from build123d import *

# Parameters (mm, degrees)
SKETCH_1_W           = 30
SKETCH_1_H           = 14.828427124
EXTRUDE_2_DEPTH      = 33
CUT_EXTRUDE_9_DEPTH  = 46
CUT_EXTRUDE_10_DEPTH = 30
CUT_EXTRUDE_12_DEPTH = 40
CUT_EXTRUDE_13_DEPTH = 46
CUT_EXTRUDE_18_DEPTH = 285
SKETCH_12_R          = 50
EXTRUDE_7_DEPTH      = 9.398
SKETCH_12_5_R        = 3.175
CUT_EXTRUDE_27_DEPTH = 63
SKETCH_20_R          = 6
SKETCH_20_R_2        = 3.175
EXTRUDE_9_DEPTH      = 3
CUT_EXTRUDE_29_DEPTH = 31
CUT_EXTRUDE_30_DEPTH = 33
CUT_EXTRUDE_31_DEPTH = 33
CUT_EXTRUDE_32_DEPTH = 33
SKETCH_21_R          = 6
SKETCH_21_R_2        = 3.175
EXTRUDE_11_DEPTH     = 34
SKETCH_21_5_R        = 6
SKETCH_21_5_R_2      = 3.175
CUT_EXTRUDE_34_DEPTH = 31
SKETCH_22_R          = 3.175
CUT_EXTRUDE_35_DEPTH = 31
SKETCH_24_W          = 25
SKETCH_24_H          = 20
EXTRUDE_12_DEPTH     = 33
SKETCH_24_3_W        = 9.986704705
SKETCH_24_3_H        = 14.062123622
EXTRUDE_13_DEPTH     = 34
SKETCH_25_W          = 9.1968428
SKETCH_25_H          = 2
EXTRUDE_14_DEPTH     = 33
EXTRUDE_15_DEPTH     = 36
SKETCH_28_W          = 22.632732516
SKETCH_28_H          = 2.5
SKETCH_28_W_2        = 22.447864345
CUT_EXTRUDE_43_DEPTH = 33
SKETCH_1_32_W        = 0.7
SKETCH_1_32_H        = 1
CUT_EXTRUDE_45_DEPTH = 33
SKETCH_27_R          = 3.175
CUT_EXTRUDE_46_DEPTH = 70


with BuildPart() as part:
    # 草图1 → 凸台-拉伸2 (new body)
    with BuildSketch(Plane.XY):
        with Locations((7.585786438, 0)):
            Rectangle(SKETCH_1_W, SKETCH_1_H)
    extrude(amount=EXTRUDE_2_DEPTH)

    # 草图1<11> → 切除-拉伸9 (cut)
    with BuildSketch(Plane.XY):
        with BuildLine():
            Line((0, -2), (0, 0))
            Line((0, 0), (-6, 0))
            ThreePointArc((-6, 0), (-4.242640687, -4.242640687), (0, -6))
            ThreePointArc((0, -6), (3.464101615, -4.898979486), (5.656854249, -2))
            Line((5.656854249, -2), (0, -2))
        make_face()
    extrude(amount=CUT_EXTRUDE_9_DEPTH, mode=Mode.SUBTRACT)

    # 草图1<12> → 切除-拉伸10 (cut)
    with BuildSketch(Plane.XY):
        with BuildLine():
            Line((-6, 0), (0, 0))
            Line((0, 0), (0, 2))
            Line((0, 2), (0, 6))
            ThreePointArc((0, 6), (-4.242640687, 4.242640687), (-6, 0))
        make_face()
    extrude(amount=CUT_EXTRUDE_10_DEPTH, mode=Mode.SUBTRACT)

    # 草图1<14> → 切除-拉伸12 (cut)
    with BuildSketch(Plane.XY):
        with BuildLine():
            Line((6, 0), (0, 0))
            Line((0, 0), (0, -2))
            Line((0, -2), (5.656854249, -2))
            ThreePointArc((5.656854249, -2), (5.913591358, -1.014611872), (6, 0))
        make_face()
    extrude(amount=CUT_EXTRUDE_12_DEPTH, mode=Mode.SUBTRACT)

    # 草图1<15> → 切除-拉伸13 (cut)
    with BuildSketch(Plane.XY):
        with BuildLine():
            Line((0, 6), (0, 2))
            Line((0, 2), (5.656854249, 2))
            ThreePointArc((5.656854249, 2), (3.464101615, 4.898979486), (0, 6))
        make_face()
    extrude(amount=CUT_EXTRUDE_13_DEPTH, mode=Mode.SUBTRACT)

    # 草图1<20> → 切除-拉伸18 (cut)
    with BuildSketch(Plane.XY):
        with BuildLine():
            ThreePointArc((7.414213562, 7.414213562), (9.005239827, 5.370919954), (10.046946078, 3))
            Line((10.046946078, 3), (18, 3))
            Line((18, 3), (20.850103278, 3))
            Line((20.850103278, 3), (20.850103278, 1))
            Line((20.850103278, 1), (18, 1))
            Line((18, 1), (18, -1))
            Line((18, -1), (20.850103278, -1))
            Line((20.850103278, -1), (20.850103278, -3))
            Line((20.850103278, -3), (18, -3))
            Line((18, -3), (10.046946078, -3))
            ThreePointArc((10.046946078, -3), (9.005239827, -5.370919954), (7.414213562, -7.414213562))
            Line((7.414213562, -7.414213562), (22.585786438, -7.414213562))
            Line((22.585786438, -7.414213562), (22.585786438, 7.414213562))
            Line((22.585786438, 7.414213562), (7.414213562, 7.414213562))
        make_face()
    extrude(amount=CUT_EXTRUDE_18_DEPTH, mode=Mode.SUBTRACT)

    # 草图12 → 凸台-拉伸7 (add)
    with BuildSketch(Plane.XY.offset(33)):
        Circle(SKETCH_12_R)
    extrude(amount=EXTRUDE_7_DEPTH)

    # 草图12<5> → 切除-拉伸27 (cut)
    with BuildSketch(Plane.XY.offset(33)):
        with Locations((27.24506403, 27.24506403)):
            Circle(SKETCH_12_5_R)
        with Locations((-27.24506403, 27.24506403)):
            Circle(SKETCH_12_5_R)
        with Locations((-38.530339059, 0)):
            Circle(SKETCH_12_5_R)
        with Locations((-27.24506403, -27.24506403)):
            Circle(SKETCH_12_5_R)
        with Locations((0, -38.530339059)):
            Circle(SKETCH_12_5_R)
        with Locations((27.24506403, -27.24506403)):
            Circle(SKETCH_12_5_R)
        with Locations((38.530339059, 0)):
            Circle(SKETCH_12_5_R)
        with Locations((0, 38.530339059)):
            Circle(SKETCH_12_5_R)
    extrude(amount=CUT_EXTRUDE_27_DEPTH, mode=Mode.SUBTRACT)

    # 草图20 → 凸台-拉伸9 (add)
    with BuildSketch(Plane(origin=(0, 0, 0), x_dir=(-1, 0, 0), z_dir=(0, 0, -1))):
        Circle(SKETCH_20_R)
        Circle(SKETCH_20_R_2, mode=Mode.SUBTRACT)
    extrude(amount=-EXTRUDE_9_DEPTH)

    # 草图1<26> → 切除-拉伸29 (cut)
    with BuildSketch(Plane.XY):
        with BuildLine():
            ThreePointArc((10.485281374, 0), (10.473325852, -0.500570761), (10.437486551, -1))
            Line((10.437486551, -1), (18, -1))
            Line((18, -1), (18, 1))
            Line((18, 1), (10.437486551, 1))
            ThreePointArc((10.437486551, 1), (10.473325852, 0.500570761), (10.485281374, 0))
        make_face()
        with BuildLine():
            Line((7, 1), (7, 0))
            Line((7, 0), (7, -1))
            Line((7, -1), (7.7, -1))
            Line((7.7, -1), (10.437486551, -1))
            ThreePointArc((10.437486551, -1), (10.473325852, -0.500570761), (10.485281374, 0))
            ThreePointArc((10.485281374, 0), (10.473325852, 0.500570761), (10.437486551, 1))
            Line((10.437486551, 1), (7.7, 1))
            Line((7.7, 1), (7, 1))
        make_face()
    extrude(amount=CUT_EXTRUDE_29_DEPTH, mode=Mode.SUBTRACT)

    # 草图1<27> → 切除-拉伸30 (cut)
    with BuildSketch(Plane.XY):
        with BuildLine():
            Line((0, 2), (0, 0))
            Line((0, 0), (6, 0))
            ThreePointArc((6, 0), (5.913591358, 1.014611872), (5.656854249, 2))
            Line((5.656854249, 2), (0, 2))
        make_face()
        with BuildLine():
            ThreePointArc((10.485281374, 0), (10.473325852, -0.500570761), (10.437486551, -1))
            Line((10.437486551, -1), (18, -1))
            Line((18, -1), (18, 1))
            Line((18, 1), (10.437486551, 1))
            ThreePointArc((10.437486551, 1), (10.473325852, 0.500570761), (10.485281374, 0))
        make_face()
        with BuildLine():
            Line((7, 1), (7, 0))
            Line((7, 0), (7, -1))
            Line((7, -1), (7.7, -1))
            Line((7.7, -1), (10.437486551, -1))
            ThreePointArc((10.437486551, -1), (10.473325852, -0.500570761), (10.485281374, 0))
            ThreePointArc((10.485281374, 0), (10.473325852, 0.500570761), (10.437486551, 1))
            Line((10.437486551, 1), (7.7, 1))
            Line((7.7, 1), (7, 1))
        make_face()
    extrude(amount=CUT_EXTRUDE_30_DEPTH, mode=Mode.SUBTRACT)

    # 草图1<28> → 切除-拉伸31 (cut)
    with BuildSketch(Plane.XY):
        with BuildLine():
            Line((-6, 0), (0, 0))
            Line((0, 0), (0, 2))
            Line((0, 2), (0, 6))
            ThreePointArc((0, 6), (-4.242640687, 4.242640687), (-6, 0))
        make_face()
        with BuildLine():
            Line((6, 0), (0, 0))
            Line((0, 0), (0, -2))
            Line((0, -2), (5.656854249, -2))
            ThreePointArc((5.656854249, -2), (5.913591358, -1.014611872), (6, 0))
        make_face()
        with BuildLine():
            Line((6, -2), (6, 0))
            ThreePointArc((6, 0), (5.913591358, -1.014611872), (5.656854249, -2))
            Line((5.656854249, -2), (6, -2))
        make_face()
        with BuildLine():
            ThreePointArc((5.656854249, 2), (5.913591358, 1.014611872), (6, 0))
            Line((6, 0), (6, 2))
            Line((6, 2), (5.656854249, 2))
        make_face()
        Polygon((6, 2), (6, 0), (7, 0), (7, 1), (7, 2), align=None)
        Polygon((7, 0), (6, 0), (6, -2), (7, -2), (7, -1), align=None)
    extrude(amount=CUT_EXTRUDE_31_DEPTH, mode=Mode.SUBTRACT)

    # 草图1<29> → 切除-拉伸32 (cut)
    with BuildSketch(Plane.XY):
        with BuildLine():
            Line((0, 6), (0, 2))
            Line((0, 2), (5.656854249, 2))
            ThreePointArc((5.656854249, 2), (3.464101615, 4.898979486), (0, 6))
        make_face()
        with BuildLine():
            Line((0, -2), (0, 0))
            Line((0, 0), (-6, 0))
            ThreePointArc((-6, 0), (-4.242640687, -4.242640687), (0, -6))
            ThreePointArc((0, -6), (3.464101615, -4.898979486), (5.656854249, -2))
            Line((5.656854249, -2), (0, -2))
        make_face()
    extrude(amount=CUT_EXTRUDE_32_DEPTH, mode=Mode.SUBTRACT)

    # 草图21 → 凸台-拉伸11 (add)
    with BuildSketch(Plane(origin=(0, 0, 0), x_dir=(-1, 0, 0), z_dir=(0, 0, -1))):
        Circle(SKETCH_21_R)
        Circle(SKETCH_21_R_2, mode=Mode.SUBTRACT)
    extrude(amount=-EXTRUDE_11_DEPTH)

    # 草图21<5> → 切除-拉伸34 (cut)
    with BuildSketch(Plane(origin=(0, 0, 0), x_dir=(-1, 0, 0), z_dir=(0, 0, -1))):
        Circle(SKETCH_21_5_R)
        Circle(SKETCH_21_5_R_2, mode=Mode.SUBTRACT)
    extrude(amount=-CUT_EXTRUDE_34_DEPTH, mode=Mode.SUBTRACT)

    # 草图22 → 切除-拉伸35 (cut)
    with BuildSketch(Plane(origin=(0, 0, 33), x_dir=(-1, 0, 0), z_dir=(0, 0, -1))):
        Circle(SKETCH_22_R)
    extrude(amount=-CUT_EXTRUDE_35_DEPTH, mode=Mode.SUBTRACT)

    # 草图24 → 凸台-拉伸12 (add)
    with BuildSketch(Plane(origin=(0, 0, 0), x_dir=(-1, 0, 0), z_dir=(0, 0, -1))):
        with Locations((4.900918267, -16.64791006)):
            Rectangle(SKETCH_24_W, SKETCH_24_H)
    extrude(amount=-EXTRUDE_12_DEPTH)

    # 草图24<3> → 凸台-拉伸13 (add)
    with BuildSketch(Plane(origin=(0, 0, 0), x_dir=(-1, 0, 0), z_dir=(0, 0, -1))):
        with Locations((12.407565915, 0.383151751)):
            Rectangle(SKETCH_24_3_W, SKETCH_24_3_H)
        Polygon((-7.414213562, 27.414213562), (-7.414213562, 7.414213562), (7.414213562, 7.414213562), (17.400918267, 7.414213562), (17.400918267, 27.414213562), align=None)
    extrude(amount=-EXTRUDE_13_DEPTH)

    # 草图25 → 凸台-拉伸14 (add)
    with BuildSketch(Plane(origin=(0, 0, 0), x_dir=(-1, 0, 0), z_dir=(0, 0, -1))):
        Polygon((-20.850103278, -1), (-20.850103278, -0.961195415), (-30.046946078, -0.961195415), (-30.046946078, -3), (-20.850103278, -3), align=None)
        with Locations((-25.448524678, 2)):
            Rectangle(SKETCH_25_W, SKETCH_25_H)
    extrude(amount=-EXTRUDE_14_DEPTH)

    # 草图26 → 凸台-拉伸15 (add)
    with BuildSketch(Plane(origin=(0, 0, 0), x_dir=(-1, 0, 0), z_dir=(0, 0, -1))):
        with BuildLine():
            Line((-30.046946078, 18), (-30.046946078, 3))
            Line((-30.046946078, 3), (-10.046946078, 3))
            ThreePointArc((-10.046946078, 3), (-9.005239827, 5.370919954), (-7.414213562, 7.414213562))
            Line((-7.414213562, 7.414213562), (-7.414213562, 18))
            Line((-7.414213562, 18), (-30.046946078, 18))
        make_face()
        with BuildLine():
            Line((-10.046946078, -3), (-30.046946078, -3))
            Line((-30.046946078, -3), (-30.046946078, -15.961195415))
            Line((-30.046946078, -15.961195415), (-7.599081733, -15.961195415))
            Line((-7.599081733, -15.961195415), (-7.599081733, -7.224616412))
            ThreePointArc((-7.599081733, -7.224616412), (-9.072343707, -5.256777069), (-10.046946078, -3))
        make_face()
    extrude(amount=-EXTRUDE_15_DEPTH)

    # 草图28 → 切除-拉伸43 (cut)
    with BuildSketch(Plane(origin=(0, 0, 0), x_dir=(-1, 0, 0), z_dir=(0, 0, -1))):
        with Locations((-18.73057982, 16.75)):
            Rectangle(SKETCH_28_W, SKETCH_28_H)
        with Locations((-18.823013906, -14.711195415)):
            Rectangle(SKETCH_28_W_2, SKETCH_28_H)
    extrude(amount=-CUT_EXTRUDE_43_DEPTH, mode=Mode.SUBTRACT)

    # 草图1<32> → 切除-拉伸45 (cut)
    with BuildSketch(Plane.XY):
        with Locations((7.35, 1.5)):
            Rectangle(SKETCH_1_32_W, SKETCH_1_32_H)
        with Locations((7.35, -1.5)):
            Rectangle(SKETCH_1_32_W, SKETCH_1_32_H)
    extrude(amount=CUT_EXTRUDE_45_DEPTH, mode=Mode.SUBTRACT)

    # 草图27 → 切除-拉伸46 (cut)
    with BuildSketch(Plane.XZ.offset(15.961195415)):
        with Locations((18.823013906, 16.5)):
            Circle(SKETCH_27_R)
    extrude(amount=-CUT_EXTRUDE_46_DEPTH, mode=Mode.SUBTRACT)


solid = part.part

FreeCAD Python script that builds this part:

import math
import FreeCAD as App
import Part
import Sketcher

V = App.Vector
Q = App.Units.Quantity


def add_polygon(sketch, points):
    """Adds a closed chain of lines whose ends are joined by coincident constraints."""
    first, n = sketch.GeometryCount, len(points)
    for a, b in zip(points, points[1:] + points[:1]):
        sketch.addGeometry(Part.LineSegment(App.Vector(*a, 0), App.Vector(*b, 0)), False)
    for i in range(n):
        sketch.addConstraint(Sketcher.Constraint("Coincident", first + i, 2, first + (i + 1) % n, 1))

doc = App.newDocument("Part")
params = doc.addObject("Spreadsheet::Sheet", "Params")
for row, (alias, value) in enumerate([
    ("sketch1_width", "30 mm"),
    ("pad1_length", "33 mm"),
    ("sketch2_radius", "6 mm"),
    ("sketch2_height", "2 mm"),
    ("pocket1_length", "46 mm"),
    ("sketch3_radius", "6 mm"),
    ("pocket2_length", "30 mm"),
    ("sketch4_radius", "6 mm"),
    ("sketch4_height", "2 mm"),
    ("pocket3_length", "40 mm"),
    ("sketch5_radius", "6 mm"),
    ("sketch5_height", "4 mm"),
    ("pocket4_length", "46 mm"),
    ("sketch6_height", "2 mm"),
    ("pocket5_length", "285 mm"),
    ("sketch7_diameter", "100 mm"),
    ("pad2_length", "9.398 mm"),
    ("sketch8_diameter", "6.35 mm"),
    ("pocket6_length", "63 mm"),
    ("sketch9_diameter", "12 mm"),
    ("sketch9_diameter2", "6.35 mm"),
    ("pad3_length", "3 mm"),
    ("sketch10_width", "11 mm"),
    ("sketch10_height", "2 mm"),
    ("pocket7_length", "31 mm"),
    ("sketch11_radius", "6 mm"),
    ("sketch11_width", "11 mm"),
    ("sketch11_height", "2 mm"),
    ("pocket8_length", "33 mm"),
    ("sketch12_radius", "6 mm"),
    ("sketch12_width", "7 mm"),
    ("sketch12_height", "2 mm"),
    ("sketch12_height2", "4 mm"),
    ("pocket9_length", "33 mm"),
    ("sketch13_radius", "6 mm"),
    ("sketch13_height", "4 mm"),
    ("pocket10_length", "33 mm"),
    ("sketch14_diameter", "12 mm"),
    ("sketch14_diameter2", "6.35 mm"),
    ("pad4_length", "34 mm"),
    ("sketch15_diameter", "12 mm"),
    ("sketch15_diameter2", "6.35 mm"),
    ("pocket11_length", "31 mm"),
    ("sketch16_diameter", "6.35 mm"),
    ("pocket12_length", "31 mm"),
    ("sketch17_width", "25 mm"),
    ("sketch17_height", "20 mm"),
    ("pad5_length", "33 mm"),
    ("sketch18_height", "20 mm"),
    ("pad6_length", "34 mm"),
    ("sketch19_height", "2 mm"),
    ("pad7_length", "33 mm"),
    ("sketch20_width", "20 mm"),
    ("sketch20_height", "15 mm"),
    ("pad8_length", "36 mm"),
    ("sketch21_height", "2.5 mm"),
    ("pocket13_length", "33 mm"),
    ("sketch22_height", "1 mm"),
    ("sketch22_width", "0.7 mm"),
    ("pocket14_length", "33 mm"),
    ("sketch23_diameter", "6.35 mm"),
    ("pocket15_length", "70 mm"),
], start=1):
    params.set(f"A{row}", alias)
    params.set(f"B{row}", "=" + value)
    params.setAlias(f"B{row}", alias)

body = doc.addObject("PartDesign::Body", "Body")

# Sketch on XY plane
sketch1 = body.newObject("Sketcher::SketchObject", "Sketch")
sketch1.AttachmentSupport = (doc.getObject("XY_Plane"), [""])
sketch1.MapMode = "FlatFace"
add_polygon(sketch1, [(-7.414214, 7.414214), (-7.414214, -7.414214), (22.585786, -7.414214), (22.585786, 7.414214)])  # lines 0-3
sketch1.addConstraint([
    Sketcher.Constraint("Vertical", 0),
    Sketcher.Constraint("Horizontal", 1),
    Sketcher.Constraint("Vertical", 2),
    Sketcher.Constraint("Horizontal", 3),
    Sketcher.Constraint("DistanceX", 1, 1, 1, 2, Q("30 mm")),
    Sketcher.Constraint("DistanceY", 0, 2, 0, 1, Q("14.828427 mm")),
    Sketcher.Constraint("DistanceX", 0, 2, -1, 1, Q("7.414214 mm")),
    Sketcher.Constraint("DistanceY", 0, 2, -1, 1, Q("7.414214 mm")),
])
sketch1.setExpression("Constraints[8]", "Params.sketch1_width")
pad1 = body.newObject("PartDesign::Pad", "Pad")
pad1.Profile = sketch1
pad1.setExpression("Length", "Params.pad1_length")

# Sketch on XY plane
sketch2 = body.newObject("Sketcher::SketchObject", "Sketch001")
sketch2.AttachmentSupport = (doc.getObject("XY_Plane"), [""])
sketch2.MapMode = "FlatFace"
sketch2.addGeometry([
    Part.LineSegment(V(0, -2, 0), V(0, 0, 0)),  # 0
    Part.LineSegment(V(0, 0, 0), V(-6, 0, 0)),  # 1
    Part.ArcOfCircle(Part.Circle(V(0, 0, 0), V(0, 0, 1), 6), math.radians(180), math.radians(270)),  # 2
    Part.ArcOfCircle(Part.Circle(V(0, 0, 0), V(0, 0, 1), 6), math.radians(-90), math.radians(-19.471221)),  # 3
    Part.LineSegment(V(5.656854, -2, 0), V(0, -2, 0)),  # 4
], False)
sketch2.addConstraint([
    Sketcher.Constraint("Coincident", 0, 2, 1, 1),
    Sketcher.Constraint("Coincident", 1, 2, 2, 1),
    Sketcher.Constraint("Tangent", 2, 2, 3, 1),
    Sketcher.Constraint("Coincident", 3, 2, 4, 1),
    Sketcher.Constraint("Coincident", 4, 2, 0, 1),
    Sketcher.Constraint("Vertical", 0),
    Sketcher.Constraint("Horizontal", 1),
    Sketcher.Constraint("Horizontal", 4),
    Sketcher.Constraint("Coincident", 2, 3, -1, 1),
    Sketcher.Constraint("Coincident", 0, 2, -1, 1),
    Sketcher.Constraint("Equal", 2, 3),
    Sketcher.Constraint("PointOnObject", 2, 2, -2),
    Sketcher.Constraint("Radius", 2, Q("6 mm")),
    Sketcher.Constraint("DistanceY", 0, 1, 0, 2, Q("2 mm")),
])
sketch2.setExpression("Constraints[12]", "Params.sketch2_radius")
sketch2.setExpression("Constraints[13]", "Params.sketch2_height")
pocket1 = body.newObject("PartDesign::Pocket", "Pocket")
pocket1.Profile = sketch2
pocket1.setExpression("Length", "Params.pocket1_length")
pocket1.Reversed = True

# Sketch on XY plane
sketch3 = body.newObject("Sketcher::SketchObject", "Sketch002")
sketch3.AttachmentSupport = (doc.getObject("XY_Plane"), [""])
sketch3.MapMode = "FlatFace"
sketch3.addGeometry([
    Part.LineSegment(V(-6, 0, 0), V(0, 0, 0)),
    Part.LineSegment(V(0, 0, 0), V(0, 6, 0)),
    Part.ArcOfCircle(Part.Circle(V(0, 0, 0), V(0, 0, 1), 6), math.radians(90), math.radians(180)),
], False)
sketch3.addConstraint([
    Sketcher.Constraint("Coincident", 0, 2, 1, 1),
    Sketcher.Constraint("Coincident", 1, 2, 2, 1),
    Sketcher.Constraint("Coincident", 2, 2, 0, 1),
    Sketcher.Constraint("Horizontal", 0),
    Sketcher.Constraint("Vertical", 1),
    Sketcher.Constraint("Coincident", 2, 3, -1, 1),
    Sketcher.Constraint("Coincident", 0, 2, -1, 1),
    Sketcher.Constraint("Radius", 2, Q("6 mm")),
])
sketch3.setExpression("Constraints[7]", "Params.sketch3_radius")
pocket2 = body.newObject("PartDesign::Pocket", "Pocket001")
pocket2.Profile = sketch3
pocket2.setExpression("Length", "Params.pocket2_length")
pocket2.Reversed = True

# Sketch on XY plane
sketch4 = body.newObject("Sketcher::SketchObject", "Sketch003")
sketch4.AttachmentSupport = (doc.getObject("XY_Plane"), [""])
sketch4.MapMode = "FlatFace"
sketch4.addGeometry([
    Part.LineSegment(V(6, 0, 0), V(0, 0, 0)),
    Part.LineSegment(V(0, 0, 0), V(0, -2, 0)),
    Part.LineSegment(V(0, -2, 0), V(5.656854, -2, 0)),
    Part.ArcOfCircle(Part.Circle(V(0, 0, 0), V(0, 0, 1), 6), math.radians(-19.471221), math.radians(0)),
], False)
sketch4.addConstraint([
    Sketcher.Constraint("Coincident", 0, 2, 1, 1),
    Sketcher.Constraint("Coincident", 1, 2, 2, 1),
    Sketcher.Constraint("Coincident", 2, 2, 3, 1),
    Sketcher.Constraint("Coincident", 3, 2, 0, 1),
    Sketcher.Constraint("Horizontal", 0),
    Sketcher.Constraint("Vertical", 1),
    Sketcher.Constraint("Horizontal", 2),
    Sketcher.Constraint("Coincident", 3, 3, -1, 1),
    Sketcher.Constraint("Coincident", 0, 2, -1, 1),
    Sketcher.Constraint("Radius", 3, Q("6 mm")),
    Sketcher.Constraint("DistanceY", 1, 2, 1, 1, Q("2 mm")),
])
sketch4.setExpression("Constraints[9]", "Params.sketch4_radius")
sketch4.setExpression("Constraints[10]", "Params.sketch4_height")
pocket3 = body.newObject("PartDesign::Pocket", "Pocket002")
pocket3.Profile = sketch4
pocket3.setExpression("Length", "Params.pocket3_length")
pocket3.Reversed = True

# Sketch on XY plane
sketch5 = body.newObject("Sketcher::SketchObject", "Sketch004")
sketch5.AttachmentSupport = (doc.getObject("XY_Plane"), [""])
sketch5.MapMode = "FlatFace"
sketch5.addGeometry([
    Part.LineSegment(V(0, 6, 0), V(0, 2, 0)),
    Part.LineSegment(V(0, 2, 0), V(5.656854, 2, 0)),
    Part.ArcOfCircle(Part.Circle(V(0, 0, 0), V(0, 0, 1), 6), math.radians(19.471221), math.radians(90)),
], False)
sketch5.addConstraint([
    Sketcher.Constraint("Coincident", 0, 2, 1, 1),
    Sketcher.Constraint("Coincident", 1, 2, 2, 1),
    Sketcher.Constraint("Coincident", 2, 2, 0, 1),
    Sketcher.Constraint("Vertical", 0),
    Sketcher.Constraint("Horizontal", 1),
    Sketcher.Constraint("Coincident", 2, 3, -1, 1),
    Sketcher.Constraint("PointOnObject", 0, 2, -2),
    Sketcher.Constraint("Radius", 2, Q("6 mm")),
    Sketcher.Constraint("DistanceY", 0, 2, 0, 1, Q("4 mm")),
])
sketch5.setExpression("Constraints[7]", "Params.sketch5_radius")
sketch5.setExpression("Constraints[8]", "Params.sketch5_height")
pocket4 = body.newObject("PartDesign::Pocket", "Pocket003")
pocket4.Profile = sketch5
pocket4.setExpression("Length", "Params.pocket4_length")
pocket4.Reversed = True

# Sketch on XY plane
sketch6 = body.newObject("Sketcher::SketchObject", "Sketch005")
sketch6.AttachmentSupport = (doc.getObject("XY_Plane"), [""])
sketch6.MapMode = "FlatFace"
sketch6.addGeometry([
    Part.ArcOfCircle(Part.Circle(V(0, 0, 0), V(0, 0, 1), 10.485281), math.radians(16.62553), math.radians(45)),  # 0
    Part.LineSegment(V(10.046946, 3, 0), V(20.850103, 3, 0)),  # 1
    Part.LineSegment(V(20.850103, 3, 0), V(20.850103, 1, 0)),  # 2
    Part.LineSegment(V(20.850103, 1, 0), V(18, 1, 0)),  # 3
    Part.LineSegment(V(18, 1, 0), V(18, -1, 0)),  # 4
    Part.LineSegment(V(18, -1, 0), V(20.850103, -1, 0)),  # 5
    Part.LineSegment(V(20.850103, -1, 0), V(20.850103, -3, 0)),  # 6
    Part.LineSegment(V(20.850103, -3, 0), V(10.046946, -3, 0)),  # 7
    Part.ArcOfCircle(Part.Circle(V(0, 0, 0), V(0, 0, 1), 10.485281), math.radians(-45), math.radians(-16.62553)),  # 8
    Part.LineSegment(V(7.414214, -7.414214, 0), V(22.585786, -7.414214, 0)),  # 9
    Part.LineSegment(V(22.585786, -7.414214, 0), V(22.585786, 7.414214, 0)),  # 10
    Part.LineSegment(V(22.585786, 7.414214, 0), V(7.414214, 7.414214, 0)),  # 11
], False)
sketch6.addConstraint([
    Sketcher.Constraint("Coincident", 0, 1, 1, 1),
    Sketcher.Constraint("Coincident", 1, 2, 2, 1),
    Sketcher.Constraint("Coincident", 2, 2, 3, 1),
    Sketcher.Constraint("Coincident", 3, 2, 4, 1),
    Sketcher.Constraint("Coincident", 4, 2, 5, 1),
    Sketcher.Constraint("Coincident", 5, 2, 6, 1),
    Sketcher.Constraint("Coincident", 6, 2, 7, 1),
    Sketcher.Constraint("Coincident", 7, 2, 8, 2),
    Sketcher.Constraint("Coincident", 8, 1, 9, 1),
    Sketcher.Constraint("Coincident", 9, 2, 10, 1),
    Sketcher.Constraint("Coincident", 10, 2, 11, 1),
    Sketcher.Constraint("Coincident", 11, 2, 0, 2),
    Sketcher.Constraint("Horizontal", 1),
    Sketcher.Constraint("Vertical", 2),
    Sketcher.Constraint("Horizontal", 3),
    Sketcher.Constraint("Vertical", 4),
    Sketcher.Constraint("Horizontal", 5),
    Sketcher.Constraint("Vertical", 6),
    Sketcher.Constraint("Horizontal", 7),
    Sketcher.Constraint("Horizontal", 9),
    Sketcher.Constraint("Vertical", 10),
    Sketcher.Constraint("Horizontal", 11),
    Sketcher.Constraint("Coincident", 0, 3, -1, 1),
    Sketcher.Constraint("Coincident", 8, 3, -1, 1),
    Sketcher.Constraint("Equal", 0, 8),
    Sketcher.Constraint("Symmetric", 2, 2, 5, 2, -1),
    Sketcher.Constraint("Vertical", 0, 1, 7, 2),
    Sketcher.Constraint("Vertical", 8, 1, 11, 2),
    Sketcher.Constraint("Equal", 2, 4),
    Sketcher.Constraint("DistanceY", 2, 2, 2, 1, Q("2 mm")),
    Sketcher.Constraint("DistanceX", -1, 1, 3, 2, Q("18 mm")),
    Sketcher.Constraint("Radius", 0, Q("10.485281 mm")),
    Sketcher.Constraint("DistanceX", 1, 1, 1, 2, Q("10.803157 mm")),
    Sketcher.Constraint("DistanceX", 9, 1, 9, 2, Q("15.171573 mm")),
    Sketcher.Constraint("DistanceY", 10, 1, 10, 2, Q("14.828427 mm")),
])
sketch6.setExpression("Constraints[29]", "Params.sketch6_height")
pocket5 = body.newObject("PartDesign::Pocket", "Pocket004")
pocket5.Profile = sketch6
pocket5.setExpression("Length", "Params.pocket5_length")
pocket5.Reversed = True

# Sketch on XY plane
sketch7 = body.newObject("Sketcher::SketchObject", "Sketch006")
sketch7.AttachmentSupport = (doc.getObject("XY_Plane"), [""])
sketch7.MapMode = "FlatFace"
sketch7.AttachmentOffset = App.Placement(V(0, 0, 33), App.Rotation())
sketch7.addGeometry(Part.Circle(V(0, 0, 0), V(0, 0, 1), 50), False)
sketch7.addConstraint([
    Sketcher.Constraint("Coincident", 0, 3, -1, 1),
    Sketcher.Constraint("Diameter", 0, Q("100 mm")),
])
sketch7.setExpression("Constraints[1]", "Params.sketch7_diameter")
pad2 = body.newObject("PartDesign::Pad", "Pad001")
pad2.Profile = sketch7
pad2.setExpression("Length", "Params.pad2_length")

# Sketch on XY plane
sketch8 = body.newObject("Sketcher::SketchObject", "Sketch007")
sketch8.AttachmentSupport = (doc.getObject("XY_Plane"), [""])
sketch8.MapMode = "FlatFace"
sketch8.AttachmentOffset = App.Placement(V(0, 0, 33), App.Rotation())
sketch8.addGeometry([
    Part.Circle(V(27.245064, 27.245064, 0), V(0, 0, 1), 3.175),  # 0
    Part.Circle(V(-27.245064, 27.245064, 0), V(0, 0, 1), 3.175),  # 1
    Part.Circle(V(-38.530339, 0, 0), V(0, 0, 1), 3.175),  # 2
    Part.Circle(V(-27.245064, -27.245064, 0), V(0, 0, 1), 3.175),  # 3
    Part.Circle(V(0, -38.530339, 0), V(0, 0, 1), 3.175),  # 4
    Part.Circle(V(27.245064, -27.245064, 0), V(0, 0, 1), 3.175),  # 5
    Part.Circle(V(38.530339, 0, 0), V(0, 0, 1), 3.175),  # 6
    Part.Circle(V(0, 38.530339, 0), V(0, 0, 1), 3.175),  # 7
], False)
sketch8.addConstraint([
    Sketcher.Constraint("Equal", 0, 1),
    Sketcher.Constraint("Equal", 1, 2),
    Sketcher.Constraint("Equal", 2, 3),
    Sketcher.Constraint("Equal", 3, 4),
    Sketcher.Constraint("Equal", 4, 5),
    Sketcher.Constraint("Equal", 5, 6),
    Sketcher.Constraint("Equal", 6, 7),
    Sketcher.Constraint("Symmetric", 0, 3, 3, 3, -1, 1),
    Sketcher.Constraint("Symmetric", 1, 3, 5, 3, -1, 1),
    Sketcher.Constraint("Symmetric", 2, 3, 6, 3, -1, 1),
    Sketcher.Constraint("Symmetric", 4, 3, 7, 3, -1, 1),
    Sketcher.Constraint("Symmetric", 0, 3, 1, 3, -2),
    Sketcher.Constraint("PointOnObject", 2, 3, -1),
    Sketcher.Constraint("PointOnObject", 4, 3, -2),
    Sketcher.Constraint("Diameter", 0, Q("6.35 mm")),
    Sketcher.Constraint("DistanceX", 2, 3, -1, 1, Q("38.530339 mm")),
    Sketcher.Constraint("DistanceY", 4, 3, -1, 1, Q("38.530339 mm")),
    Sketcher.Constraint("DistanceX", 1, 3, 0, 3, Q("54.490128 mm")),
    Sketcher.Constraint("DistanceY", 3, 3, 1, 3, Q("54.490128 mm")),
])
sketch8.setExpression("Constraints[14]", "Params.sketch8_diameter")
pocket6 = body.newObject("PartDesign::Pocket", "Pocket005")
pocket6.Profile = sketch8
pocket6.setExpression("Length", "Params.pocket6_length")
pocket6.Reversed = True

# Sketch on XY plane
sketch9 = body.newObject("Sketcher::SketchObject", "Sketch008")
sketch9.AttachmentSupport = (doc.getObject("XY_Plane"), [""])
sketch9.MapMode = "FlatFace"
sketch9.addGeometry([
    Part.Circle(V(0, 0, 0), V(0, 0, 1), 6),
    Part.Circle(V(0, 0, 0), V(0, 0, 1), 3.175),
], False)
sketch9.addConstraint([
    Sketcher.Constraint("Coincident", 0, 3, -1, 1),
    Sketcher.Constraint("Coincident", 1, 3, -1, 1),
    Sketcher.Constraint("Diameter", 0, Q("12 mm")),
    Sketcher.Constraint("Diameter", 1, Q("6.35 mm")),
])
sketch9.setExpression("Constraints[2]", "Params.sketch9_diameter")
sketch9.setExpression("Constraints[3]", "Params.sketch9_diameter2")
pad3 = body.newObject("PartDesign::Pad", "Pad002")
pad3.Profile = sketch9
pad3.setExpression("Length", "Params.pad3_length")

# Sketch on XY plane
sketch10 = body.newObject("Sketcher::SketchObject", "Sketch009")
sketch10.AttachmentSupport = (doc.getObject("XY_Plane"), [""])
sketch10.MapMode = "FlatFace"
add_polygon(sketch10, [(18, -1), (18, 1), (7, 1), (7, -1)])  # lines 0-3
sketch10.addConstraint([
    Sketcher.Constraint("Vertical", 0),
    Sketcher.Constraint("Horizontal", 1),
    Sketcher.Constraint("Vertical", 2),
    Sketcher.Constraint("Horizontal", 3),
    Sketcher.Constraint("DistanceX", 1, 2, 1, 1, Q("11 mm")),
    Sketcher.Constraint("DistanceY", 0, 1, 0, 2, Q("2 mm")),
    Sketcher.Constraint("DistanceX", -1, 1, 0, 2, Q("18 mm")),
    Sketcher.Constraint("DistanceY", -1, 1, 0, 2, Q("1 mm")),
])
sketch10.setExpression("Constraints[8]", "Params.sketch10_width")
sketch10.setExpression("Constraints[9]", "Params.sketch10_height")
pocket7 = body.newObject("PartDesign::Pocket", "Pocket006")
pocket7.Profile = sketch10
pocket7.setExpression("Length", "Params.pocket7_length")
pocket7.Reversed = True

# Sketch on XY plane
sketch11 = body.newObject("Sketcher::SketchObject", "Sketch010")
sketch11.AttachmentSupport = (doc.getObject("XY_Plane"), [""])
sketch11.MapMode = "FlatFace"
sketch11.addGeometry(Part.LineSegment(V(0, 2, 0), V(0, 0, 0)), False)  # 0
sketch11.addGeometry(Part.LineSegment(V(0, 0, 0), V(6, 0, 0)), False)  # 1
sketch11.addGeometry(Part.ArcOfCircle(Part.Circle(V(0, 0, 0), V(0, 0, 1), 6), math.radians(0), math.radians(19.471221)), False)  # 2
sketch11.addGeometry(Part.LineSegment(V(5.656854, 2, 0), V(0, 2, 0)), False)  # 3
add_polygon(sketch11, [(18, -1), (18, 1), (7, 1), (7, -1)])  # lines 4-7
sketch11.addConstraint([
    Sketcher.Constraint("Coincident", 0, 2, 1, 1),
    Sketcher.Constraint("Coincident", 1, 2, 2, 1),
    Sketcher.Constraint("Coincident", 2, 2, 3, 1),
    Sketcher.Constraint("Coincident", 3, 2, 0, 1),
    Sketcher.Constraint("Vertical", 0),
    Sketcher.Constraint("Horizontal", 1),
    Sketcher.Constraint("Horizontal", 3),
    Sketcher.Constraint("Vertical", 4),
    Sketcher.Constraint("Horizontal", 5),
    Sketcher.Constraint("Vertical", 6),
    Sketcher.Constraint("Horizontal", 7),
    Sketcher.Constraint("Coincident", 2, 3, -1, 1),
    Sketcher.Constraint("Coincident", 0, 2, -1, 1),
    Sketcher.Constraint("Equal", 0, 4),
    Sketcher.Constraint("Radius", 2, Q("6 mm")),
    Sketcher.Constraint("DistanceX", 5, 2, 5, 1, Q("11 mm")),
    Sketcher.Constraint("DistanceY", 0, 2, 0, 1, Q("2 mm")),
    Sketcher.Constraint("DistanceX", -1, 1, 4, 2, Q("18 mm")),
    Sketcher.Constraint("DistanceY", -1, 1, 4, 2, Q("1 mm")),
])
sketch11.setExpression("Constraints[18]", "Params.sketch11_radius")
sketch11.setExpression("Constraints[19]", "Params.sketch11_width")
sketch11.setExpression("Constraints[20]", "Params.sketch11_height")
pocket8 = body.newObject("PartDesign::Pocket", "Pocket007")
pocket8.Profile = sketch11
pocket8.setExpression("Length", "Params.pocket8_length")
pocket8.Reversed = True

# Sketch on XY plane
sketch12 = body.newObject("Sketcher::SketchObject", "Sketch011")
sketch12.AttachmentSupport = (doc.getObject("XY_Plane"), [""])
sketch12.MapMode = "FlatFace"
sketch12.addGeometry([
    Part.LineSegment(V(-6, 0, 0), V(0, 0, 0)),  # 0
    Part.LineSegment(V(0, 0, 0), V(0, 6, 0)),  # 1
    Part.ArcOfCircle(Part.Circle(V(0, 0, 0), V(0, 0, 1), 6), math.radians(90), math.radians(180)),  # 2
    Part.LineSegment(V(6, 0, 0), V(0, 0, 0)),  # 3
    Part.LineSegment(V(0, 0, 0), V(0, -2, 0)),  # 4
    Part.LineSegment(V(0, -2, 0), V(7, -2, 0)),  # 5
    Part.LineSegment(V(7, -2, 0), V(7, 2, 0)),  # 6
    Part.LineSegment(V(7, 2, 0), V(5.656854, 2, 0)),  # 7
    Part.ArcOfCircle(Part.Circle(V(0, 0, 0), V(0, 0, 1), 6), math.radians(0), math.radians(19.471221)),  # 8
], False)
sketch12.addConstraint([
    Sketcher.Constraint("Coincident", 0, 2, 1, 1),
    Sketcher.Constraint("Coincident", 1, 2, 2, 1),
    Sketcher.Constraint("Coincident", 2, 2, 0, 1),
    Sketcher.Constraint("Coincident", 3, 2, 4, 1),
    Sketcher.Constraint("Coincident", 4, 2, 5, 1),
    Sketcher.Constraint("Coincident", 5, 2, 6, 1),
    Sketcher.Constraint("Coincident", 6, 2, 7, 1),
    Sketcher.Constraint("Coincident", 7, 2, 8, 2),
    Sketcher.Constraint("Coincident", 8, 1, 3, 1),
    Sketcher.Constraint("Horizontal", 0),
    Sketcher.Constraint("Vertical", 1),
    Sketcher.Constraint("Horizontal", 3),
    Sketcher.Constraint("Vertical", 4),
    Sketcher.Constraint("Horizontal", 5),
    Sketcher.Constraint("Vertical", 6),
    Sketcher.Constraint("Horizontal", 7),
    Sketcher.Constraint("Coincident", 2, 3, -1, 1),
    Sketcher.Constraint("Coincident", 8, 3, -1, 1),
    Sketcher.Constraint("Coincident", 0, 2, -1, 1),
    Sketcher.Constraint("Coincident", 3, 2, -1, 1),
    Sketcher.Constraint("Equal", 2, 8),
    Sketcher.Constraint("Radius", 2, Q("6 mm")),
    Sketcher.Constraint("DistanceX", 5, 1, 5, 2, Q("7 mm")),
    Sketcher.Constraint("DistanceY", 4, 2, 4, 1, Q("2 mm")),
    Sketcher.Constraint("DistanceY", 6, 1, 6, 2, Q("4 mm")),
])
sketch12.setExpression("Constraints[21]", "Params.sketch12_radius")
sketch12.setExpression("Constraints[22]", "Params.sketch12_width")
sketch12.setExpression("Constraints[23]", "Params.sketch12_height")
sketch12.setExpression("Constraints[24]", "Params.sketch12_height2")
pocket9 = body.newObject("PartDesign::Pocket", "Pocket008")
pocket9.Profile = sketch12
pocket9.setExpression("Length", "Params.pocket9_length")
pocket9.Reversed = True

# Sketch on XY plane
sketch13 = body.newObject("Sketcher::SketchObject", "Sketch012")
sketch13.AttachmentSupport = (doc.getObject("XY_Plane"), [""])
sketch13.MapMode = "FlatFace"
sketch13.addGeometry([
    Part.LineSegment(V(0, 6, 0), V(0, 2, 0)),  # 0
    Part.LineSegment(V(0, 2, 0), V(5.656854, 2, 0)),  # 1
    Part.ArcOfCircle(Part.Circle(V(0, 0, 0), V(0, 0, 1), 6), math.radians(19.471221), math.radians(90)),  # 2
    Part.LineSegment(V(0, -2, 0), V(0, 0, 0)),  # 3
    Part.LineSegment(V(0, 0, 0), V(-6, 0, 0)),  # 4
    Part.ArcOfCircle(Part.Circle(V(0, 0, 0), V(0, 0, 1), 6), math.radians(180), math.radians(270)),  # 5
    Part.ArcOfCircle(Part.Circle(V(0, 0, 0), V(0, 0, 1), 6), math.radians(-90), math.radians(-19.471221)),  # 6
    Part.LineSegment(V(5.656854, -2, 0), V(0, -2, 0)),  # 7
], False)
sketch13.addConstraint([
    Sketcher.Constraint("Coincident", 0, 2, 1, 1),
    Sketcher.Constraint("Coincident", 1, 2, 2, 1),
    Sketcher.Constraint("Coincident", 2, 2, 0, 1),
    Sketcher.Constraint("Coincident", 3, 2, 4, 1),
    Sketcher.Constraint("Coincident", 4, 2, 5, 1),
    Sketcher.Constraint("Tangent", 5, 2, 6, 1),
    Sketcher.Constraint("Coincident", 6, 2, 7, 1),
    Sketcher.Constraint("Coincident", 7, 2, 3, 1),
    Sketcher.Constraint("Vertical", 0),
    Sketcher.Constraint("Horizontal", 1),
    Sketcher.Constraint("Vertical", 3),
    Sketcher.Constraint("Horizontal", 4),
    Sketcher.Constraint("Horizontal", 7),
    Sketcher.Constraint("Coincident", 2, 3, -1, 1),
    Sketcher.Constraint("Coincident", 5, 3, -1, 1),
    Sketcher.Constraint("Coincident", 3, 2, -1, 1),
    Sketcher.Constraint("Equal", 2, 5),
    Sketcher.Constraint("Equal", 5, 6),
    Sketcher.Constraint("Symmetric", 0, 2, 7, 2, -1, 1),
    Sketcher.Constraint("PointOnObject", 5, 2, -2),
    Sketcher.Constraint("Radius", 2, Q("6 mm")),
    Sketcher.Constraint("DistanceY", 0, 2, 0, 1, Q("4 mm")),
])
sketch13.setExpression("Constraints[20]", "Params.sketch13_radius")
sketch13.setExpression("Constraints[21]", "Params.sketch13_height")
pocket10 = body.newObject("PartDesign::Pocket", "Pocket009")
pocket10.Profile = sketch13
pocket10.setExpression("Length", "Params.pocket10_length")
pocket10.Reversed = True

# Sketch on XY plane
sketch14 = body.newObject("Sketcher::SketchObject", "Sketch013")
sketch14.AttachmentSupport = (doc.getObject("XY_Plane"), [""])
sketch14.MapMode = "FlatFace"
sketch14.addGeometry([
    Part.Circle(V(0, 0, 0), V(0, 0, 1), 6),
    Part.Circle(V(0, 0, 0), V(0, 0, 1), 3.175),
], False)
sketch14.addConstraint([
    Sketcher.Constraint("Coincident", 0, 3, -1, 1),
    Sketcher.Constraint("Coincident", 1, 3, -1, 1),
    Sketcher.Constraint("Diameter", 0, Q("12 mm")),
    Sketcher.Constraint("Diameter", 1, Q("6.35 mm")),
])
sketch14.setExpression("Constraints[2]", "Params.sketch14_diameter")
sketch14.setExpression("Constraints[3]", "Params.sketch14_diameter2")
pad4 = body.newObject("PartDesign::Pad", "Pad003")
pad4.Profile = sketch14
pad4.setExpression("Length", "Params.pad4_length")

# Sketch on XY plane
sketch15 = body.newObject("Sketcher::SketchObject", "Sketch014")
sketch15.AttachmentSupport = (doc.getObject("XY_Plane"), [""])
sketch15.MapMode = "FlatFace"
sketch15.addGeometry([
    Part.Circle(V(0, 0, 0), V(0, 0, 1), 6),
    Part.Circle(V(0, 0, 0), V(0, 0, 1), 3.175),
], False)
sketch15.addConstraint([
    Sketcher.Constraint("Coincident", 0, 3, -1, 1),
    Sketcher.Constraint("Coincident", 1, 3, -1, 1),
    Sketcher.Constraint("Diameter", 0, Q("12 mm")),
    Sketcher.Constraint("Diameter", 1, Q("6.35 mm")),
])
sketch15.setExpression("Constraints[2]", "Params.sketch15_diameter")
sketch15.setExpression("Constraints[3]", "Params.sketch15_diameter2")
pocket11 = body.newObject("PartDesign::Pocket", "Pocket010")
pocket11.Profile = sketch15
pocket11.setExpression("Length", "Params.pocket11_length")
pocket11.Reversed = True

# Sketch on XY plane
sketch16 = body.newObject("Sketcher::SketchObject", "Sketch015")
sketch16.AttachmentSupport = (doc.getObject("XY_Plane"), [""])
sketch16.MapMode = "FlatFace"
sketch16.AttachmentOffset = App.Placement(V(0, 0, 33), App.Rotation())
sketch16.addGeometry(Part.Circle(V(0, 0, 0), V(0, 0, 1), 3.175), False)
sketch16.addConstraint([
    Sketcher.Constraint("Coincident", 0, 3, -1, 1),
    Sketcher.Constraint("Diameter", 0, Q("6.35 mm")),
])
sketch16.setExpression("Constraints[1]", "Params.sketch16_diameter")
pocket12 = body.newObject("PartDesign::Pocket", "Pocket011")
pocket12.Profile = sketch16
pocket12.setExpression("Length", "Params.pocket12_length")
pocket12.Reversed = True

# Sketch on XY plane
sketch17 = body.newObject("Sketcher::SketchObject", "Sketch016")
sketch17.AttachmentSupport = (doc.getObject("XY_Plane"), [""])
sketch17.MapMode = "FlatFace"
add_polygon(sketch17, [(7.599082, -6.64791), (7.599082, -26.64791), (-17.400918, -26.64791), (-17.400918, -6.64791)])  # lines 0-3
sketch17.addConstraint([
    Sketcher.Constraint("Vertical", 0),
    Sketcher.Constraint("Horizontal", 1),
    Sketcher.Constraint("Vertical", 2),
    Sketcher.Constraint("Horizontal", 3),
    Sketcher.Constraint("DistanceX", 1, 2, 1, 1, Q("25 mm")),
    Sketcher.Constraint("DistanceY", 0, 2, 0, 1, Q("20 mm")),
    Sketcher.Constraint("DistanceX", -1, 1, 0, 2, Q("7.599082 mm")),
    Sketcher.Constraint("DistanceY", 0, 2, -1, 1, Q("26.64791 mm")),
])
sketch17.setExpression("Constraints[8]", "Params.sketch17_width")
sketch17.setExpression("Constraints[9]", "Params.sketch17_height")
pad5 = body.newObject("PartDesign::Pad", "Pad004")
pad5.Profile = sketch17
pad5.setExpression("Length", "Params.pad5_length")

# Sketch on XY plane
sketch18 = body.newObject("Sketcher::SketchObject", "Sketch017")
sketch18.AttachmentSupport = (doc.getObject("XY_Plane"), [""])
sketch18.MapMode = "FlatFace"
add_polygon(sketch18, [(-7.414214, 7.414214), (-7.414214, -6.64791), (-17.400918, -6.64791), (-17.400918, 7.414214), (-17.400918, 27.414214), (7.414214, 27.414214), (7.414214, 7.414214)])  # lines 0-6
sketch18.addConstraint([
    Sketcher.Constraint("Vertical", 0),
    Sketcher.Constraint("Horizontal", 1),
    Sketcher.Constraint("Vertical", 2),
    Sketcher.Constraint("Vertical", 3),
    Sketcher.Constraint("Horizontal", 4),
    Sketcher.Constraint("Vertical", 5),
    Sketcher.Constraint("Horizontal", 6),
    Sketcher.Constraint("Horizontal", 2, 2, 5, 2),
    Sketcher.Constraint("DistanceY", 3, 1, 3, 2, Q("20 mm")),
    Sketcher.Constraint("DistanceX", 4, 1, 4, 2, Q("24.815132 mm")),
    Sketcher.Constraint("DistanceX", 1, 2, 1, 1, Q("9.986705 mm")),
    Sketcher.Constraint("DistanceY", 0, 2, 0, 1, Q("14.062124 mm")),
    Sketcher.Constraint("DistanceY", 0, 2, -1, 1, Q("6.64791 mm")),
    Sketcher.Constraint("DistanceX", 1, 2, -1, 1, Q("17.400918 mm")),
])
sketch18.setExpression("Constraints[15]", "Params.sketch18_height")
pad6 = body.newObject("PartDesign::Pad", "Pad005")
pad6.Profile = sketch18
pad6.setExpression("Length", "Params.pad6_length")

# Sketch on XY plane
sketch19 = body.newObject("Sketcher::SketchObject", "Sketch018")
sketch19.AttachmentSupport = (doc.getObject("XY_Plane"), [""])
sketch19.MapMode = "FlatFace"
add_polygon(sketch19, [(20.850103, -0.961195), (30.046946, -0.961195), (30.046946, -3), (20.850103, -3)])  # lines 0-3
add_polygon(sketch19, [(30.046946, 3), (30.046946, 1), (20.850103, 1), (20.850103, 3)])  # lines 4-7
sketch19.addConstraint([
    Sketcher.Constraint("Horizontal", 0),
    Sketcher.Constraint("Vertical", 1),
    Sketcher.Constraint("Horizontal", 2),
    Sketcher.Constraint("Vertical", 3),
    Sketcher.Constraint("Vertical", 4),
    Sketcher.Constraint("Horizontal", 5),
    Sketcher.Constraint("Vertical", 6),
    Sketcher.Constraint("Horizontal", 7),
    Sketcher.Constraint("Symmetric", 2, 2, 6, 2, -1),
    Sketcher.Constraint("Vertical", 1, 2, 4, 2),
    Sketcher.Constraint("DistanceY", 4, 2, 4, 1, Q("2 mm")),
    Sketcher.Constraint("DistanceY", 1, 2, -1, 1, Q("3 mm")),
    Sketcher.Constraint("DistanceX", 0, 1, 0, 2, Q("9.196843 mm")),
    Sketcher.Constraint("DistanceY", 1, 2, 1, 1, Q("2.038805 mm")),
    Sketcher.Constraint("DistanceX", -1, 1, 0, 2, Q("30.046946 mm")),
])
sketch19.setExpression("Constraints[18]", "Params.sketch19_height")
pad7 = body.newObject("PartDesign::Pad", "Pad006")
pad7.Profile = sketch19
pad7.setExpression("Length", "Params.pad7_length")

# Sketch on XY plane
sketch20 = body.newObject("Sketcher::SketchObject", "Sketch019")
sketch20.AttachmentSupport = (doc.getObject("XY_Plane"), [""])
sketch20.MapMode = "FlatFace"
sketch20.addGeometry([
    Part.LineSegment(V(30.046946, 18, 0), V(30.046946, 3, 0)),  # 0
    Part.LineSegment(V(30.046946, 3, 0), V(10.046946, 3, 0)),  # 1
    Part.ArcOfCircle(Part.Circle(V(0, 0, 0), V(0, 0, 1), 10.485281), math.radians(16.62553), math.radians(45)),  # 2
    Part.LineSegment(V(7.414214, 7.414214, 0), V(7.414214, 18, 0)),  # 3
    Part.LineSegment(V(7.414214, 18, 0), V(30.046946, 18, 0)),  # 4
    Part.LineSegment(V(10.046946, -3, 0), V(30.046946, -3, 0)),  # 5
    Part.LineSegment(V(30.046946, -3, 0), V(30.046946, -15.961195, 0)),  # 6
    Part.LineSegment(V(30.046946, -15.961195, 0), V(7.599082, -15.961195, 0)),  # 7
    Part.LineSegment(V(7.599082, -15.961195, 0), V(7.599082, -7.224616, 0)),  # 8
    Part.ArcOfCircle(Part.Circle(V(0, 0, 0), V(0, 0, 1), 10.485281), math.radians(-43.552944), math.radians(-16.62553)),  # 9
], False)
sketch20.addConstraint([
    Sketcher.Constraint("Coincident", 0, 2, 1, 1),
    Sketcher.Constraint("Coincident", 1, 2, 2, 1),
    Sketcher.Constraint("Coincident", 2, 2, 3, 1),
    Sketcher.Constraint("Coincident", 3, 2, 4, 1),
    Sketcher.Constraint("Coincident", 4, 2, 0, 1),
    Sketcher.Constraint("Coincident", 5, 2, 6, 1),
    Sketcher.Constraint("Coincident", 6, 2, 7, 1),
    Sketcher.Constraint("Coincident", 7, 2, 8, 1),
    Sketcher.Constraint("Coincident", 8, 2, 9, 1),
    Sketcher.Constraint("Coincident", 9, 2, 5, 1),
    Sketcher.Constraint("Vertical", 0),
    Sketcher.Constraint("Horizontal", 1),
    Sketcher.Constraint("Vertical", 3),
    Sketcher.Constraint("Horizontal", 4),
    Sketcher.Constraint("Horizontal", 5),
    Sketcher.Constraint("Vertical", 6),
    Sketcher.Constraint("Horizontal", 7),
    Sketcher.Constraint("Vertical", 8),
    Sketcher.Constraint("Coincident", 2, 3, -1, 1),
    Sketcher.Constraint("Coincident", 9, 3, -1, 1),
    Sketcher.Constraint("Equal", 2, 9),
    Sketcher.Constraint("Symmetric", 0, 2, 5, 2, -1),
    Sketcher.Constraint("DistanceX", 1, 2, 1, 1, Q("20 mm")),
    Sketcher.Constraint("DistanceY", 0, 2, 0, 1, Q("15 mm")),
    Sketcher.Constraint("DistanceY", -1, 1, 0, 2, Q("3 mm")),
    Sketcher.Constraint("Radius", 2, Q("10.485281 mm")),
    Sketcher.Constraint("DistanceY", 8, 1, 8, 2, Q("8.736579 mm")),
    Sketcher.Constraint("DistanceX", 4, 1, 4, 2, Q("22.632733 mm")),
    Sketcher.Constraint("DistanceX", 7, 2, 7, 1, Q("22.447864 mm")),
])
sketch20.setExpression("Constraints[22]", "Params.sketch20_width")
sketch20.setExpression("Constraints[23]", "Params.sketch20_height")
pad8 = body.newObject("PartDesign::Pad", "Pad007")
pad8.Profile = sketch20
pad8.setExpression("Length", "Params.pad8_length")

# Sketch on XY plane
sketch21 = body.newObject("Sketcher::SketchObject", "Sketch020")
sketch21.AttachmentSupport = (doc.getObject("XY_Plane"), [""])
sketch21.MapMode = "FlatFace"
add_polygon(sketch21, [(30.046946, 18), (30.046946, 15.5), (7.414214, 15.5), (7.414214, 18)])  # lines 0-3
add_polygon(sketch21, [(30.046946, -13.461195), (30.046946, -15.961195), (7.599082, -15.961195), (7.599082, -13.461195)])  # lines 4-7
sketch21.addConstraint([
    Sketcher.Constraint("Vertical", 0),
    Sketcher.Constraint("Horizontal", 1),
    Sketcher.Constraint("Vertical", 2),
    Sketcher.Constraint("Horizontal", 3),
    Sketcher.Constraint("Vertical", 4),
    Sketcher.Constraint("Horizontal", 5),
    Sketcher.Constraint("Vertical", 6),
    Sketcher.Constraint("Horizontal", 7),
    Sketcher.Constraint("Vertical", 3, 2, 4, 2),
    Sketcher.Constraint("Equal", 2, 4),
    Sketcher.Constraint("DistanceY", 0, 2, 0, 1, Q("2.5 mm")),
    Sketcher.Constraint("DistanceY", -1, 1, 2, 2, Q("18 mm")),
    Sketcher.Constraint("DistanceX", 1, 2, 1, 1, Q("22.632733 mm")),
    Sketcher.Constraint("DistanceX", 5, 2, 5, 1, Q("22.447864 mm")),
    Sketcher.Constraint("DistanceX", -1, 1, 5, 2, Q("7.599082 mm")),
    Sketcher.Constraint("DistanceY", 4, 2, -1, 1, Q("15.961195 mm")),
])
sketch21.setExpression("Constraints[18]", "Params.sketch21_height")
pocket13 = body.newObject("PartDesign::Pocket", "Pocket012")
pocket13.Profile = sketch21
pocket13.setExpression("Length", "Params.pocket13_length")
pocket13.Reversed = True

# Sketch on XY plane
sketch22 = body.newObject("Sketcher::SketchObject", "Sketch021")
sketch22.AttachmentSupport = (doc.getObject("XY_Plane"), [""])
sketch22.MapMode = "FlatFace"
add_polygon(sketch22, [(7, 2), (7, 1), (7.7, 1), (7.7, 2)])  # lines 0-3
add_polygon(sketch22, [(7, -1), (7, -2), (7.7, -2), (7.7, -1)])  # lines 4-7
sketch22.addConstraint([
    Sketcher.Constraint("Vertical", 0),
    Sketcher.Constraint("Horizontal", 1),
    Sketcher.Constraint("Vertical", 2),
    Sketcher.Constraint("Horizontal", 3),
    Sketcher.Constraint("Vertical", 4),
    Sketcher.Constraint("Horizontal", 5),
    Sketcher.Constraint("Vertical", 6),
    Sketcher.Constraint("Horizontal", 7),
    Sketcher.Constraint("Symmetric", 3, 2, 4, 2, -1),
    Sketcher.Constraint("Symmetric", 1, 2, 6, 2, -1),
    Sketcher.Constraint("DistanceY", 0, 2, 0, 1, Q("1 mm")),
    Sketcher.Constraint("DistanceX", 1, 1, 1, 2, Q("0.7 mm")),
    Sketcher.Constraint("DistanceX", -1, 1, 0, 2, Q("7 mm")),
    Sketcher.Constraint("DistanceY", -1, 1, 0, 2, Q("1 mm")),
])
sketch22.setExpression("Constraints[18]", "Params.sketch22_height")
sketch22.setExpression("Constraints[19]", "Params.sketch22_width")
pocket14 = body.newObject("PartDesign::Pocket", "Pocket013")
pocket14.Profile = sketch22
pocket14.setExpression("Length", "Params.pocket14_length")
pocket14.Reversed = True

# Sketch on XZ plane
sketch23 = body.newObject("Sketcher::SketchObject", "Sketch022")
sketch23.AttachmentSupport = (doc.getObject("XZ_Plane"), [""])
sketch23.MapMode = "FlatFace"
sketch23.AttachmentOffset = App.Placement(V(0, 0, 15.961195), App.Rotation())
sketch23.addGeometry(Part.Circle(V(18.823014, 16.5, 0), V(0, 0, 1), 3.175), False)
sketch23.addConstraint([
    Sketcher.Constraint("Diameter", 0, Q("6.35 mm")),
    Sketcher.Constraint("DistanceY", -1, 1, 0, 3, Q("16.5 mm")),
    Sketcher.Constraint("DistanceX", -1, 1, 0, 3, Q("18.823014 mm")),
])
sketch23.setExpression("Constraints[0]", "Params.sketch23_diameter")
pocket15 = body.newObject("PartDesign::Pocket", "Pocket014")
pocket15.Profile = sketch23
pocket15.setExpression("Length", "Params.pocket15_length")

doc.recompute()
